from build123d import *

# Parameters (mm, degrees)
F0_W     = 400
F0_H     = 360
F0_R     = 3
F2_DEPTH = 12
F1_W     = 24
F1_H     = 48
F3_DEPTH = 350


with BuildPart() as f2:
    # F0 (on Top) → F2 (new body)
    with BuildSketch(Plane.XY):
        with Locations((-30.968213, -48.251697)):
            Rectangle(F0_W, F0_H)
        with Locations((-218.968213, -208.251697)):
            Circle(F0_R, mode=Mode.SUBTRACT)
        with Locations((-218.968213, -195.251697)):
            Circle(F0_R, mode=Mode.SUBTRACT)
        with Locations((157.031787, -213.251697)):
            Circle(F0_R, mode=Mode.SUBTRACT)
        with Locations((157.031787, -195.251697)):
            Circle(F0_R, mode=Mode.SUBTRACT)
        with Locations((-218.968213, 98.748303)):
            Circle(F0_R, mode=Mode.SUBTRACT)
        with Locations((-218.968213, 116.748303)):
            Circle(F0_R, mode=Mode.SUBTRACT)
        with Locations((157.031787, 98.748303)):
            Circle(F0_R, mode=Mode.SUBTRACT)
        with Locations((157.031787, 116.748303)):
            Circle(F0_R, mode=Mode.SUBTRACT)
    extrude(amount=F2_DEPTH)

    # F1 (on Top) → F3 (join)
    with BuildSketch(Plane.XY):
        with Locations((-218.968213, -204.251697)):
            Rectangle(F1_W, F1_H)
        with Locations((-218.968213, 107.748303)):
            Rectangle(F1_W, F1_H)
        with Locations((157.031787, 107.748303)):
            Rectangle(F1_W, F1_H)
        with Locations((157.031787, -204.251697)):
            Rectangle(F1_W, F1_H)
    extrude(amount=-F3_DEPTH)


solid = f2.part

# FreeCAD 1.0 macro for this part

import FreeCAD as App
import Part
import Sketcher
Q = App.Units.Quantity

doc = App.newDocument("Part")
body = doc.addObject("PartDesign::Body", "Body")

# Sketch on XY plane
sketch1 = body.newObject("Sketcher::SketchObject", "Sketch")
sketch1.AttachmentSupport = (doc.getObject("XY_Plane"), [""])
sketch1.MapMode = "FlatFace"
sketch1.addGeometry(Part.LineSegment(App.Vector(-231, 131.7, 0), App.Vector(-231, -228.3, 0)), False)
sketch1.addGeometry(Part.LineSegment(App.Vector(-231, -228.3, 0), App.Vector(169, -228.3, 0)), False)
sketch1.addGeometry(Part.LineSegment(App.Vector(169, -228.3, 0), App.Vector(169, 131.7, 0)), False)
sketch1.addGeometry(Part.LineSegment(App.Vector(169, 131.7, 0), App.Vector(-231, 131.7, 0)), False)
sketch1.addGeometry(Part.Circle(App.Vector(-219, -208.3, 0), App.Vector(0, 0, 1), 3), False)
sketch1.addGeometry(Part.Circle(App.Vector(-219, -195.3, 0), App.Vector(0, 0, 1), 3), False)
sketch1.addGeometry(Part.Circle(App.Vector(157, -213.3, 0), App.Vector(0, 0, 1), 3), False)
sketch1.addGeometry(Part.Circle(App.Vector(157, -195.3, 0), App.Vector(0, 0, 1), 3), False)
sketch1.addGeometry(Part.Circle(App.Vector(-219, 98.7, 0), App.Vector(0, 0, 1), 3), False)
sketch1.addGeometry(Part.Circle(App.Vector(-219, 116.7, 0), App.Vector(0, 0, 1), 3), False)
sketch1.addGeometry(Part.Circle(App.Vector(157, 98.7, 0), App.Vector(0, 0, 1), 3), False)
sketch1.addGeometry(Part.Circle(App.Vector(157, 116.7, 0), App.Vector(0, 0, 1), 3), False)
sketch1.addConstraint(Sketcher.Constraint("Coincident", 0, 2, 1, 1))
sketch1.addConstraint(Sketcher.Constraint("Coincident", 1, 2, 2, 1))
sketch1.addConstraint(Sketcher.Constraint("Coincident", 2, 2, 3, 1))
sketch1.addConstraint(Sketcher.Constraint("Coincident", 3, 2, 0, 1))
sketch1.addConstraint(Sketcher.Constraint("Vertical", 0))
sketch1.addConstraint(Sketcher.Constraint("Horizontal", 1))
sketch1.addConstraint(Sketcher.Constraint("Vertical", 2))
sketch1.addConstraint(Sketcher.Constraint("Horizontal", 3))
sketch1.addConstraint(Sketcher.Constraint("Equal", 4, 5))
sketch1.addConstraint(Sketcher.Constraint("Equal", 5, 6))
sketch1.addConstraint(Sketcher.Constraint("Equal", 6, 7))
sketch1.addConstraint(Sketcher.Constraint("Equal", 7, 8))
sketch1.addConstraint(Sketcher.Constraint("Equal", 8, 9))
sketch1.addConstraint(Sketcher.Constraint("Equal", 9, 10))
sketch1.addConstraint(Sketcher.Constraint("Equal", 10, 11))
sketch1.addConstraint(Sketcher.Constraint("Horizontal", 5, 3, 7, 3))
sketch1.addConstraint(Sketcher.Constraint("Horizontal", 8, 3, 10, 3))
sketch1.addConstraint(Sketcher.Constraint("Horizontal", 9, 3, 11, 3))
sketch1.addConstraint(Sketcher.Constraint("Vertical", 4, 3, 5, 3))
sketch1.addConstraint(Sketcher.Constraint("Vertical", 6, 3, 7, 3))
sketch1.addConstraint(Sketcher.Constraint("Vertical", 5, 3, 8, 3))
sketch1.addConstraint(Sketcher.Constraint("Vertical", 8, 3, 9, 3))
sketch1.addConstraint(Sketcher.Constraint("Vertical", 7, 3, 10, 3))
sketch1.addConstraint(Sketcher.Constraint("Vertical", 10, 3, 11, 3))
sketch1.addConstraint(Sketcher.Constraint("Diameter", 4, Q("6 mm")))
sketch1.addConstraint(Sketcher.Constraint("DistanceX", 1, 1, 1, 2, Q("400 mm")))
sketch1.addConstraint(Sketcher.Constraint("DistanceY", 0, 2, 0, 1, Q("360 mm")))
sketch1.addConstraint(Sketcher.Constraint("DistanceY", 4, 3, 5, 3, Q("13 mm")))
sketch1.addConstraint(Sketcher.Constraint("DistanceX", 4, 3, 6, 3, Q("376 mm")))
sketch1.addConstraint(Sketcher.Constraint("DistanceY", 6, 3, 4, 3, Q("5 mm")))
sketch1.addConstraint(Sketcher.Constraint("DistanceY", 5, 3, 8, 3, Q("294 mm")))
sketch1.addConstraint(Sketcher.Constraint("DistanceY", 8, 3, 9, 3, Q("18 mm")))
sketch1.addConstraint(Sketcher.Constraint("DistanceX", 0, 2, 4, 3, Q("12 mm")))
sketch1.addConstraint(Sketcher.Constraint("DistanceY", 0, 2, 4, 3, Q("20 mm")))
sketch1.addConstraint(Sketcher.Constraint("DistanceX", 4, 3, -1, 1, Q("218.968213 mm")))
sketch1.addConstraint(Sketcher.Constraint("DistanceY", 4, 3, -1, 1, Q("208.251697 mm")))
pad1 = body.newObject("PartDesign::Pad", "Pad")
pad1.Profile = sketch1
pad1.Length = 12

# Sketch on XY plane
sketch2 = body.newObject("Sketcher::SketchObject", "Sketch001")
sketch2.AttachmentSupport = (doc.getObject("XY_Plane"), [""])
sketch2.MapMode = "FlatFace"
sketch2.addGeometry(Part.LineSegment(App.Vector(-231, -180, 0), App.Vector(-231, -228, 0)), False)
sketch2.addGeometry(Part.LineSegment(App.Vector(-231, -228, 0), App.Vector(-207, -228, 0)), False)
sketch2.addGeometry(Part.LineSegment(App.Vector(-207, -228, 0), App.Vector(-207, -180, 0)), False)
sketch2.addGeometry(Part.LineSegment(App.Vector(-207, -180, 0), App.Vector(-231, -180, 0)), False)
sketch2.addGeometry(Part.LineSegment(App.Vector(-231, 132, 0), App.Vector(-231, 84, 0)), False)
sketch2.addGeometry(Part.LineSegment(App.Vector(-231, 84, 0), App.Vector(-207, 84, 0)), False)
sketch2.addGeometry(Part.LineSegment(App.Vector(-207, 84, 0), App.Vector(-207, 132, 0)), False)
sketch2.addGeometry(Part.LineSegment(App.Vector(-207, 132, 0), App.Vector(-231, 132, 0)), False)
sketch2.addGeometry(Part.LineSegment(App.Vector(145, 132, 0), App.Vector(145, 84, 0)), False)
sketch2.addGeometry(Part.LineSegment(App.Vector(145, 84, 0), App.Vector(169, 84, 0)), False)
sketch2.addGeometry(Part.LineSegment(App.Vector(169, 84, 0), App.Vector(169, 132, 0)), False)
sketch2.addGeometry(Part.LineSegment(App.Vector(169, 132, 0), App.Vector(145, 132, 0)), False)
sketch2.addGeometry(Part.LineSegment(App.Vector(145, -180, 0), App.Vector(145, -228, 0)), False)
sketch2.addGeometry(Part.LineSegment(App.Vector(145, -228, 0), App.Vector(169, -228, 0)), False)
sketch2.addGeometry(Part.LineSegment(App.Vector(169, -228, 0), App.Vector(169, -180, 0)), False)
sketch2.addGeometry(Part.LineSegment(App.Vector(169, -180, 0), App.Vector(145, -180, 0)), False)
sketch2.addConstraint(Sketcher.Constraint("Coincident", 0, 2, 1, 1))
sketch2.addConstraint(Sketcher.Constraint("Coincident", 1, 2, 2, 1))
sketch2.addConstraint(Sketcher.Constraint("Coincident", 2, 2, 3, 1))
sketch2.addConstraint(Sketcher.Constraint("Coincident", 3, 2, 0, 1))
sketch2.addConstraint(Sketcher.Constraint("Coincident", 4, 2, 5, 1))
sketch2.addConstraint(Sketcher.Constraint("Coincident", 5, 2, 6, 1))
sketch2.addConstraint(Sketcher.Constraint("Coincident", 6, 2, 7, 1))
sketch2.addConstraint(Sketcher.Constraint("Coincident", 7, 2, 4, 1))
sketch2.addConstraint(Sketcher.Constraint("Coincident", 8, 2, 9, 1))
sketch2.addConstraint(Sketcher.Constraint("Coincident", 9, 2, 10, 1))
sketch2.addConstraint(Sketcher.Constraint("Coincident", 10, 2, 11, 1))
sketch2.addConstraint(Sketcher.Constraint("Coincident", 11, 2, 8, 1))
sketch2.addConstraint(Sketcher.Constraint("Coincident", 12, 2, 13, 1))
sketch2.addConstraint(Sketcher.Constraint("Coincident", 13, 2, 14, 1))
sketch2.addConstraint(Sketcher.Constraint("Coincident", 14, 2, 15, 1))
sketch2.addConstraint(Sketcher.Constraint("Coincident", 15, 2, 12, 1))
sketch2.addConstraint(Sketcher.Constraint("Vertical", 0))
sketch2.addConstraint(Sketcher.Constraint("Horizontal", 1))
sketch2.addConstraint(Sketcher.Constraint("Vertical", 2))
sketch2.addConstraint(Sketcher.Constraint("Horizontal", 3))
sketch2.addConstraint(Sketcher.Constraint("Vertical", 4))
sketch2.addConstraint(Sketcher.Constraint("Horizontal", 5))
sketch2.addConstraint(Sketcher.Constraint("Vertical", 6))
sketch2.addConstraint(Sketcher.Constraint("Horizontal", 7))
sketch2.addConstraint(Sketcher.Constraint("Vertical", 8))
sketch2.addConstraint(Sketcher.Constraint("Horizontal", 9))
sketch2.addConstraint(Sketcher.Constraint("Vertical", 10))
sketch2.addConstraint(Sketcher.Constraint("Horizontal", 11))
sketch2.addConstraint(Sketcher.Constraint("Vertical", 12))
sketch2.addConstraint(Sketcher.Constraint("Horizontal", 13))
sketch2.addConstraint(Sketcher.Constraint("Vertical", 14))
sketch2.addConstraint(Sketcher.Constraint("Horizontal", 15))
sketch2.addConstraint(Sketcher.Constraint("Horizontal", 5, 2, 8, 2))
sketch2.addConstraint(Sketcher.Constraint("Horizontal", 7, 2, 10, 2))
sketch2.addConstraint(Sketcher.Constraint("Horizontal", 1, 2, 12, 2))
sketch2.addConstraint(Sketcher.Constraint("Horizontal", 3, 2, 14, 2))
sketch2.addConstraint(Sketcher.Constraint("Vertical", 3, 2, 4, 2))
sketch2.addConstraint(Sketcher.Constraint("Vertical", 2, 2, 5, 2))
sketch2.addConstraint(Sketcher.Constraint("Vertical", 11, 2, 12, 2))
sketch2.addConstraint(Sketcher.Constraint("Vertical", 10, 2, 13, 2))
sketch2.addConstraint(Sketcher.Constraint("Equal", 7, 9))
sketch2.addConstraint(Sketcher.Constraint("Equal", 2, 4))
sketch2.addConstraint(Sketcher.Constraint("DistanceX", 1, 1, 1, 2, Q("24 mm")))
sketch2.addConstraint(Sketcher.Constraint("DistanceY", 0, 2, 0, 1, Q("48 mm")))
sketch2.addConstraint(Sketcher.Constraint("DistanceY", 3, 2, 4, 2, Q("264 mm")))
sketch2.addConstraint(Sketcher.Constraint("DistanceX", 5, 2, 8, 2, Q("352 mm")))
sketch2.addConstraint(Sketcher.Constraint("DistanceX", 0, 2, -1, 1, Q("230.968213 mm")))
sketch2.addConstraint(Sketcher.Constraint("DistanceY", 0, 2, -1, 1, Q("228.251697 mm")))
pad2 = body.newObject("PartDesign::Pad", "Pad001")
pad2.Profile = sketch2
pad2.Length = 350
pad2.Reversed = True

doc.recompute()
